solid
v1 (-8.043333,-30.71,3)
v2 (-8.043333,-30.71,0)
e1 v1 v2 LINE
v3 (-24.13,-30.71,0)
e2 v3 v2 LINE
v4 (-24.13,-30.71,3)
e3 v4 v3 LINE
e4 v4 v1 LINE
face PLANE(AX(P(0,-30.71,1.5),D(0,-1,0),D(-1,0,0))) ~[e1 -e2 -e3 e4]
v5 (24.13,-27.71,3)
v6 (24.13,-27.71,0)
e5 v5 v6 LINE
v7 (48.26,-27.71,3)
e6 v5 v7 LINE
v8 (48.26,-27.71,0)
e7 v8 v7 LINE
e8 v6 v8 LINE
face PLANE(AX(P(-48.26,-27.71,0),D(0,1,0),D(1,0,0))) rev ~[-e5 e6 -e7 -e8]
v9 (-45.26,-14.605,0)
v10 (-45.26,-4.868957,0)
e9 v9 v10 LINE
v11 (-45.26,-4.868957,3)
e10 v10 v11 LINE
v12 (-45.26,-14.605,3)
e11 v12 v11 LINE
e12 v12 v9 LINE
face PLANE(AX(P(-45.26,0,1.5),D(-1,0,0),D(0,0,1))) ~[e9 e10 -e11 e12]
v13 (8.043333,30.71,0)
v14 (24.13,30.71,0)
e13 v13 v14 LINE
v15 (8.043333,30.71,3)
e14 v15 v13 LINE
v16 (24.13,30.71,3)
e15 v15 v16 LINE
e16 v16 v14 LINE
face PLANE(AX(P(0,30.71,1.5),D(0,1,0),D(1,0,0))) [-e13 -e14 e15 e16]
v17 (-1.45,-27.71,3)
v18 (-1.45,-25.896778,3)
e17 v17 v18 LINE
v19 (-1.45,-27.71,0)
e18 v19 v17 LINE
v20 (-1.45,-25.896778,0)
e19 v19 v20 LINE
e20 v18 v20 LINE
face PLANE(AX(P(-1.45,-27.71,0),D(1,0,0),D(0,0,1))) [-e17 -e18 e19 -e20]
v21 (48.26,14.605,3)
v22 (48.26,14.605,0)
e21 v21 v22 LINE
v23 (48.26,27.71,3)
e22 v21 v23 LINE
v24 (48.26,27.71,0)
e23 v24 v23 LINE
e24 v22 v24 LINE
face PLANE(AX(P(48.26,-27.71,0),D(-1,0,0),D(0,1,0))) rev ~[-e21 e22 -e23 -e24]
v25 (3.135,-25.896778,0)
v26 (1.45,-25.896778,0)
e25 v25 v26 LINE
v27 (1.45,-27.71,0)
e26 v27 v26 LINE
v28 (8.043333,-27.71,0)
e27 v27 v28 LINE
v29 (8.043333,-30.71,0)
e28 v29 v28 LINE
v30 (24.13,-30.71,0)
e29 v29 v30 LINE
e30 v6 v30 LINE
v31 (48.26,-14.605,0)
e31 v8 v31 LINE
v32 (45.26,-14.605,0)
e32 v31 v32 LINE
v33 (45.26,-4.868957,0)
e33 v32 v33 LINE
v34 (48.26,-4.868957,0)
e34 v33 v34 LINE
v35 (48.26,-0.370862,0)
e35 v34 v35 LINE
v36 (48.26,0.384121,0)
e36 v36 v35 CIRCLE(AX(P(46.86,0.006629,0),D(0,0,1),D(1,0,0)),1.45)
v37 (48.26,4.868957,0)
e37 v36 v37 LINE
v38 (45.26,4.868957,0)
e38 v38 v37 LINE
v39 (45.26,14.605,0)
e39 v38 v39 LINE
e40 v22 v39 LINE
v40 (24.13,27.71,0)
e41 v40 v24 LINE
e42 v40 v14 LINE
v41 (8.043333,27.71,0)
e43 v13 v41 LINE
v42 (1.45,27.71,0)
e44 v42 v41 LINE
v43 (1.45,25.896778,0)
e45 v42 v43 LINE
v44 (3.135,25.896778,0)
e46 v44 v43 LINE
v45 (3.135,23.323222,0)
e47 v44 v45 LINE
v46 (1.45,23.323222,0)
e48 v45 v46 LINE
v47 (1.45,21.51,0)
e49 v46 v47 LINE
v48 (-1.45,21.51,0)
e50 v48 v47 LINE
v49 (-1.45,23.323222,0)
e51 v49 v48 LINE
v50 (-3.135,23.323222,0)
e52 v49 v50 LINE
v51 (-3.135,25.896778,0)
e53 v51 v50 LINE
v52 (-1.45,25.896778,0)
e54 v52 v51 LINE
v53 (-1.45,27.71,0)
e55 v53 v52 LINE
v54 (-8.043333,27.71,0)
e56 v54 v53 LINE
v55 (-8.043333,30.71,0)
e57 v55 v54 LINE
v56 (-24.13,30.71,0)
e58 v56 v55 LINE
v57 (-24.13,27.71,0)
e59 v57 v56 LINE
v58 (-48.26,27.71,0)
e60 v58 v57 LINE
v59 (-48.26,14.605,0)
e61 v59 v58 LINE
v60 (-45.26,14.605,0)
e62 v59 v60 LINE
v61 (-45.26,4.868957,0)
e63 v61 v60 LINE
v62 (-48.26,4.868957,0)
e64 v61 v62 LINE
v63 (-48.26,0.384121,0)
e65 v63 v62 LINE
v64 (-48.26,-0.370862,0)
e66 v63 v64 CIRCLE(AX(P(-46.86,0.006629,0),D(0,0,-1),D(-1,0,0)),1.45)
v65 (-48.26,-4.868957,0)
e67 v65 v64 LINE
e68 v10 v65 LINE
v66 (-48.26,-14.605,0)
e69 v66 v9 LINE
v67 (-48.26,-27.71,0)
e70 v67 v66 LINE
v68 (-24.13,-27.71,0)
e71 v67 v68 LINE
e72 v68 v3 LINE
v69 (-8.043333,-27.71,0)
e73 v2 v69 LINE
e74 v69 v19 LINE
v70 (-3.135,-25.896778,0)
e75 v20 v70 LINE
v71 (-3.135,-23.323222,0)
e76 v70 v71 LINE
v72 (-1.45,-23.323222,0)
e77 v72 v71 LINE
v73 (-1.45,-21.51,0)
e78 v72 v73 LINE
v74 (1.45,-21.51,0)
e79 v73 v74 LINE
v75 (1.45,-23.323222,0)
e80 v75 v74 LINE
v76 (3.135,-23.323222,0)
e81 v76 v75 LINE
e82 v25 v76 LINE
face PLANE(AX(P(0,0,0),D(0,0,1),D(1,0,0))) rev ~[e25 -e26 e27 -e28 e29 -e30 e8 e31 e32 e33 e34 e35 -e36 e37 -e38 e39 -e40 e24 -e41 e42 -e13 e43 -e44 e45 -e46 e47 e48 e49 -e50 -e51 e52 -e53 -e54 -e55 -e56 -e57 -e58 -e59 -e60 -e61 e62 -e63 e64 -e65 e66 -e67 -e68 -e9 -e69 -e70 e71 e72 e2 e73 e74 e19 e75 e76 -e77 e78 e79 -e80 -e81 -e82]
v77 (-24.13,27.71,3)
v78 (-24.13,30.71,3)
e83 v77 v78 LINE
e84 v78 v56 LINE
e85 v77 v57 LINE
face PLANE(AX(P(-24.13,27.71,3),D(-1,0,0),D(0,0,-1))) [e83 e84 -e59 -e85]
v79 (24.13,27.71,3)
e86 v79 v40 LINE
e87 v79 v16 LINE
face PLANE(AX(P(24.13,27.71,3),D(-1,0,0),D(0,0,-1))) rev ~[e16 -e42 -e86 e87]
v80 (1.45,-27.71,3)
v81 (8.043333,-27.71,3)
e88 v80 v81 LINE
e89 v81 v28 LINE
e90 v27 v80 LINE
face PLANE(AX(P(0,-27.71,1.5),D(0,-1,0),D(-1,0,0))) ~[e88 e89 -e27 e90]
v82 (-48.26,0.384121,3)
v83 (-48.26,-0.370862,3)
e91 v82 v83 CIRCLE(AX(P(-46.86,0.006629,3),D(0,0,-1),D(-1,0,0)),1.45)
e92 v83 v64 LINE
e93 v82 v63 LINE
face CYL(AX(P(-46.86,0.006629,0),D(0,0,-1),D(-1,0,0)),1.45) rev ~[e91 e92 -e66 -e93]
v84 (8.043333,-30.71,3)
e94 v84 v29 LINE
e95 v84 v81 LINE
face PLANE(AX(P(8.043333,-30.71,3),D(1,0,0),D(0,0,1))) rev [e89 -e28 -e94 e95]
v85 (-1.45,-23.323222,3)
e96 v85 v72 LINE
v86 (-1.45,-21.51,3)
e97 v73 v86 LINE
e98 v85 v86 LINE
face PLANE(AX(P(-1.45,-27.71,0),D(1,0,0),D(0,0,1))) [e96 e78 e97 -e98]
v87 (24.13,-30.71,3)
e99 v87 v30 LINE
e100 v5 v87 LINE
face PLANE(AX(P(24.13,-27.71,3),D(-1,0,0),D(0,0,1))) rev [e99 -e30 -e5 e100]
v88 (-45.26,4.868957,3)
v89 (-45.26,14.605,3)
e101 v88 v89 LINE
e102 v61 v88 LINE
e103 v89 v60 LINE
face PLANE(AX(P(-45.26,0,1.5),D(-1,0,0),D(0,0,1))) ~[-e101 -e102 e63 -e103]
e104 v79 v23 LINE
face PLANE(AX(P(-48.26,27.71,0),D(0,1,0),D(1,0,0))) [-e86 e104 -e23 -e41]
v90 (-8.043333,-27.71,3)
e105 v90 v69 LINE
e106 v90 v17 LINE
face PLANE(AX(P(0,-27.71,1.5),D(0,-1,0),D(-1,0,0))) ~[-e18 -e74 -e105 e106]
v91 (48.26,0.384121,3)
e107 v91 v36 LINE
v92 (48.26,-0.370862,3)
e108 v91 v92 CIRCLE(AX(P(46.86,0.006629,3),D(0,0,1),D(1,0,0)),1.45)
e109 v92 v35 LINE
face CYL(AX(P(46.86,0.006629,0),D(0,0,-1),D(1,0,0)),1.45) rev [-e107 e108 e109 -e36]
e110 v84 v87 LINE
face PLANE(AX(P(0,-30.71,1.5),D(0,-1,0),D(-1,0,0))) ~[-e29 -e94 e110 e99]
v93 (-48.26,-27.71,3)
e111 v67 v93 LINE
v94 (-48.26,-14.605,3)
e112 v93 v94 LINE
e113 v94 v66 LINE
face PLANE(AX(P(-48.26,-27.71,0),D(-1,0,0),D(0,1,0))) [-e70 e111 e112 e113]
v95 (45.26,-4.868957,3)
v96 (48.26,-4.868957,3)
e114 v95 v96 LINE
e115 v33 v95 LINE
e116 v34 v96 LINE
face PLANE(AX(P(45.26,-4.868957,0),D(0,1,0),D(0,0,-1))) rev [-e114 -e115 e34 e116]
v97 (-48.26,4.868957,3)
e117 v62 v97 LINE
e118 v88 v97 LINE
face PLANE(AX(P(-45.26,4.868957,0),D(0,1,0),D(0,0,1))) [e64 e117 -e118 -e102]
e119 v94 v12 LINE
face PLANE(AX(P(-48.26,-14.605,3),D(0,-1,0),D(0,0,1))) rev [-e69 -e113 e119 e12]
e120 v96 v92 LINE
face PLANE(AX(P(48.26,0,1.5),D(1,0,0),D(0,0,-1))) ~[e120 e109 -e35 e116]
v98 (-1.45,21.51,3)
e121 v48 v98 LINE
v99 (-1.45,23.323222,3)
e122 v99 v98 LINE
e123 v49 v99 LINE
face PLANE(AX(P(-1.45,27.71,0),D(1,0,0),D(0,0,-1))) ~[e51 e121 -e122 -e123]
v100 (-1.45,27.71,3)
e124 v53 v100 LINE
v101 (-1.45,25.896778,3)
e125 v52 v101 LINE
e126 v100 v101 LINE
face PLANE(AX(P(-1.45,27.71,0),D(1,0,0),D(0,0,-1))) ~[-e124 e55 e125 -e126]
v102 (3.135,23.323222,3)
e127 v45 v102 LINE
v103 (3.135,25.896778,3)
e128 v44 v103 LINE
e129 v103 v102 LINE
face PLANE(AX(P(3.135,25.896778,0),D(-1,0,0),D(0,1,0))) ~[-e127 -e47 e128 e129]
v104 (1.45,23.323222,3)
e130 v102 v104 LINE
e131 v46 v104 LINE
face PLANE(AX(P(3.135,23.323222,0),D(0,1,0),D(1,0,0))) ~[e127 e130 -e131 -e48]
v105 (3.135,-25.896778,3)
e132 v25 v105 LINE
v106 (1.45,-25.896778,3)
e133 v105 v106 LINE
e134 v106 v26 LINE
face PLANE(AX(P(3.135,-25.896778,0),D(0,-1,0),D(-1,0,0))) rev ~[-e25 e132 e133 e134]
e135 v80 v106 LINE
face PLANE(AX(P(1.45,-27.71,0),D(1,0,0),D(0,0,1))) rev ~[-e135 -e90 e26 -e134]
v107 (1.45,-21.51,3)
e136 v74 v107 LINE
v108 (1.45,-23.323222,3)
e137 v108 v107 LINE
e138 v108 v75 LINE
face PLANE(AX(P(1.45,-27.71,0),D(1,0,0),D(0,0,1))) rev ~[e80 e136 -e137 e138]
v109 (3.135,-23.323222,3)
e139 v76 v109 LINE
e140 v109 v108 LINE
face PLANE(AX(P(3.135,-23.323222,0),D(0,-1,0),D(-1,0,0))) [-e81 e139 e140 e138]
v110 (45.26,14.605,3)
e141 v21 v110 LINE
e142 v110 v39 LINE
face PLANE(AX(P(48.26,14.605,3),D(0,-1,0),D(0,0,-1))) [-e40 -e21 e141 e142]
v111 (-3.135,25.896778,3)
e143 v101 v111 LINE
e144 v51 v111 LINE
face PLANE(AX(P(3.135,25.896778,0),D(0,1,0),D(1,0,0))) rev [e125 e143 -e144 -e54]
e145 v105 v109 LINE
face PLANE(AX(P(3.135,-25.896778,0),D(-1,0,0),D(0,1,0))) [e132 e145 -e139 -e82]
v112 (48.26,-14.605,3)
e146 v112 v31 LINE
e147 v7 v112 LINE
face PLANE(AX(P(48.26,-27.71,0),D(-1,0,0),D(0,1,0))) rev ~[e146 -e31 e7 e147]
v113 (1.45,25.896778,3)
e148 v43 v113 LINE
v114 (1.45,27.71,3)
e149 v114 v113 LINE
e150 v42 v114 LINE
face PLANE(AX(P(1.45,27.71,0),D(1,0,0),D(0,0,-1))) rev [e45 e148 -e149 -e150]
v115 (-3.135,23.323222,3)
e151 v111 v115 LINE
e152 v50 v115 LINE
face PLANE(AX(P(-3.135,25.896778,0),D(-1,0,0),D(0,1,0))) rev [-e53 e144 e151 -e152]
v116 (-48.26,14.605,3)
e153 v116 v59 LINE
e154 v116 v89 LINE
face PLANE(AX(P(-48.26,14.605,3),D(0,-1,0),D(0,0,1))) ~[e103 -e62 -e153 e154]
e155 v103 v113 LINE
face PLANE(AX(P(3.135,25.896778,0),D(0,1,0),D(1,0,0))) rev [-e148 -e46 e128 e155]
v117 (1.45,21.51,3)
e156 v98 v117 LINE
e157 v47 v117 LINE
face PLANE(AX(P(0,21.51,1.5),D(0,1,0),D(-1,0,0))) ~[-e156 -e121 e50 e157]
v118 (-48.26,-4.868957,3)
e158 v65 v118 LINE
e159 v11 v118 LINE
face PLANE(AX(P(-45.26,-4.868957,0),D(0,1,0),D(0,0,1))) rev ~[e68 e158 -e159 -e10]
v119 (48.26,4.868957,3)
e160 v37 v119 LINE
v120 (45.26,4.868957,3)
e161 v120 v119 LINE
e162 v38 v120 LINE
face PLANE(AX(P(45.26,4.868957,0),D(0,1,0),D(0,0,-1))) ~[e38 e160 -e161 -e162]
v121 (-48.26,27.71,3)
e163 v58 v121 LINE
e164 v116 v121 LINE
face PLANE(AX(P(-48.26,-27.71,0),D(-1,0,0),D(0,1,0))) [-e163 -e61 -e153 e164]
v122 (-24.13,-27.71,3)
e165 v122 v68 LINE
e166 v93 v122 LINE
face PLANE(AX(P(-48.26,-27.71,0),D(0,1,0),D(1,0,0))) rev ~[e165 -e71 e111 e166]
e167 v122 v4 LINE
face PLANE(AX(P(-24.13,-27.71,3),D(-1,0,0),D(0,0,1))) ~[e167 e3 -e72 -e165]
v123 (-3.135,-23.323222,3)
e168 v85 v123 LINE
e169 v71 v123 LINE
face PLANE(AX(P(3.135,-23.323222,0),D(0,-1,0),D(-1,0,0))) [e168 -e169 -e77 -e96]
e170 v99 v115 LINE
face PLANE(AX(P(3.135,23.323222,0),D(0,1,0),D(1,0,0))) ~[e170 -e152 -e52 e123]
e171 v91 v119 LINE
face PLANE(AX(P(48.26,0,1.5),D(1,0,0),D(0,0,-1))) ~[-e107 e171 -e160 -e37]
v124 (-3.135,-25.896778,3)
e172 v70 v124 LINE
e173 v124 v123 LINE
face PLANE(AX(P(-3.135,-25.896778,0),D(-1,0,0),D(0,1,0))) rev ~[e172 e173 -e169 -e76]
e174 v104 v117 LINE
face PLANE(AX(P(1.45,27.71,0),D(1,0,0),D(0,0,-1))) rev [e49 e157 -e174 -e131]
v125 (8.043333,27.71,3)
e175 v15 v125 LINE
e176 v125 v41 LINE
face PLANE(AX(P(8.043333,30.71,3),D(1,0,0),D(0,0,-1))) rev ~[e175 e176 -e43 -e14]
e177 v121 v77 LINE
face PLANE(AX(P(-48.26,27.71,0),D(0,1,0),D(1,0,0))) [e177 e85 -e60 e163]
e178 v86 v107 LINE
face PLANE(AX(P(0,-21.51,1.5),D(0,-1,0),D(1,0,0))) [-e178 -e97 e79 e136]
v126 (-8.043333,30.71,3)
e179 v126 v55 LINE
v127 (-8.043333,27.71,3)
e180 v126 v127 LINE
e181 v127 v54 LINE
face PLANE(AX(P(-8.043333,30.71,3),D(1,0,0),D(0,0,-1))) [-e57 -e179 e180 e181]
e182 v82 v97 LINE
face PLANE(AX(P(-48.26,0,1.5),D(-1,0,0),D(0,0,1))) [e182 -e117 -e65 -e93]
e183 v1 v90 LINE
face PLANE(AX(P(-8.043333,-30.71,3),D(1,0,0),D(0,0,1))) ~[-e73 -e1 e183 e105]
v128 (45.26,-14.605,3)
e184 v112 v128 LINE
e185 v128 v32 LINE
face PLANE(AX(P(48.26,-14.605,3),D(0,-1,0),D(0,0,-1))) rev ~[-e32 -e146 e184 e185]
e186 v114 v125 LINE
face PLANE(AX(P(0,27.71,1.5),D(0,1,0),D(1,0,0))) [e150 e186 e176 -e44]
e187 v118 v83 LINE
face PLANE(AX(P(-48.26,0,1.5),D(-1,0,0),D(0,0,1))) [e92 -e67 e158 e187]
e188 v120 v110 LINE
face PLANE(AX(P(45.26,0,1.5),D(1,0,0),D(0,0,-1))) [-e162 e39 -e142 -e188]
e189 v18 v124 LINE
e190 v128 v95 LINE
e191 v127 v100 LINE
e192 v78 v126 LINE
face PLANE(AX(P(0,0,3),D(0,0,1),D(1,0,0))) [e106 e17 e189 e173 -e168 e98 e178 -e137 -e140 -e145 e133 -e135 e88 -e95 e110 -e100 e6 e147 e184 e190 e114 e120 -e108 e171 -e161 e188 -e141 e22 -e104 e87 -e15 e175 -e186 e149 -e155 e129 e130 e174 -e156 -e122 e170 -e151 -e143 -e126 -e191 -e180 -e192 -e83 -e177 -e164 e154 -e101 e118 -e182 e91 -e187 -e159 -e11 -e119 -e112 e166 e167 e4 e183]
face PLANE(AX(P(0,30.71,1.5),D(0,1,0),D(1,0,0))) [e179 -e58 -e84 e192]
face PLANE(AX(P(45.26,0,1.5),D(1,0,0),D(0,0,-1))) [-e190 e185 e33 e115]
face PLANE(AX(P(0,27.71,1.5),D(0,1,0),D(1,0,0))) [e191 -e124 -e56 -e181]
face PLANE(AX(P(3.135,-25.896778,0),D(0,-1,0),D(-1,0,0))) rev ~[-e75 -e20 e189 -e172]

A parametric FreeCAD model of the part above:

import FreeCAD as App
import Part
import Sketcher

V = App.Vector

doc = App.newDocument("Part")
body = doc.addObject("PartDesign::Body", "Body")

# Sketch on XY plane
sketch1 = body.newObject("Sketcher::SketchObject", "Sketch")
sketch1.AttachmentSupport = (doc.getObject("XY_Plane"), [""])
sketch1.MapMode = "FlatFace"
sketch1.addGeometry([
    Part.LineSegment(V(-48, 28, 0), V(-48, -28, 0)),
    Part.LineSegment(V(-48, -28, 0), V(48, -28, 0)),
    Part.LineSegment(V(48, -28, 0), V(48, 28, 0)),
    Part.LineSegment(V(48, 28, 0), V(-48, 28, 0)),
], False)
sketch1.addConstraint([
    Sketcher.Constraint("Coincident", 0, 2, 1, 1),
    Sketcher.Constraint("Coincident", 1, 2, 2, 1),
    Sketcher.Constraint("Coincident", 2, 2, 3, 1),
    Sketcher.Constraint("Coincident", 3, 2, 0, 1),
    Sketcher.Constraint("Vertical", 0),
    Sketcher.Constraint("Horizontal", 1),
    Sketcher.Constraint("Vertical", 2),
    Sketcher.Constraint("Horizontal", 3),
    Sketcher.Constraint("Symmetric", 0, 2, 2, 2, -1, 1),
    Sketcher.Constraint("DistanceX", 1, 1, 1, 2, 96.52),
    Sketcher.Constraint("DistanceY", 0, 2, 0, 1, 55.42),
])
pad1 = body.newObject("PartDesign::Pad", "Pad")
pad1.Profile = sketch1
pad1.Length = 3

# Sketch on XZ plane
sketch2 = body.newObject("Sketcher::SketchObject", "Sketch001")
sketch2.AttachmentSupport = (doc.getObject("XZ_Plane"), [""])
sketch2.MapMode = "FlatFace"
sketch2.AttachmentOffset = App.Placement(V(0, 0, -27.71), App.Rotation())
sketch2.addGeometry([
    Part.LineSegment(V(-24.1, 0, 0), V(-24.1, 3, 0)),
    Part.LineSegment(V(-24.1, 3, 0), V(24.1, 3, 0)),
    Part.LineSegment(V(24.1, 3, 0), V(24.1, 0, 0)),
    Part.LineSegment(V(24.1, 0, 0), V(-24.1, 0, 0)),
], False)
sketch2.addConstraint([
    Sketcher.Constraint("Coincident", 0, 2, 1, 1),
    Sketcher.Constraint("Coincident", 1, 2, 2, 1),
    Sketcher.Constraint("Coincident", 2, 2, 3, 1),
    Sketcher.Constraint("Coincident", 3, 2, 0, 1),
    Sketcher.Constraint("Vertical", 0),
    Sketcher.Constraint("Horizontal", 1),
    Sketcher.Constraint("Vertical", 2),
    Sketcher.Constraint("Horizontal", 3),
    Sketcher.Constraint("Symmetric", 2, 2, 3, 2, -1, 1),
    Sketcher.Constraint("DistanceY", 0, 1, 0, 2, 3.0),
    Sketcher.Constraint("DistanceX", 1, 1, 1, 2, 48.26),
])
pad2 = body.newObject("PartDesign::Pad", "Pad001")
pad2.Profile = sketch2
pad2.Length = 3
pad2.Reversed = True
doc.recompute()

mirrored = body.newObject("PartDesign::Mirrored", "Mirrored")
mirrored.Originals = [pad2]
mirrored.MirrorPlane = (doc.getObject("XZ_Plane"), [""])
body.Tip = mirrored

# Sketch on YZ plane
sketch3 = body.newObject("Sketcher::SketchObject", "Sketch002")
sketch3.AttachmentSupport = (doc.getObject("YZ_Plane"), [""])
sketch3.MapMode = "FlatFace"
sketch3.AttachmentOffset = App.Placement(V(0, 0, 48.26), App.Rotation())
sketch3.addGeometry([
    Part.LineSegment(V(14.6, 3, 0), V(-14.6, 3, 0)),
    Part.LineSegment(V(-14.6, 3, 0), V(-14.6, 0, 0)),
    Part.LineSegment(V(-14.6, 0, 0), V(14.6, 0, 0)),
    Part.LineSegment(V(14.6, 0, 0), V(14.6, 3, 0)),
], False)
sketch3.addConstraint([
    Sketcher.Constraint("Coincident", 0, 2, 1, 1),
    Sketcher.Constraint("Coincident", 1, 2, 2, 1),
    Sketcher.Constraint("Coincident", 2, 2, 3, 1),
    Sketcher.Constraint("Coincident", 3, 2, 0, 1),
    Sketcher.Constraint("Horizontal", 0),
    Sketcher.Constraint("Vertical", 1),
    Sketcher.Constraint("Horizontal", 2),
    Sketcher.Constraint("Vertical", 3),
    Sketcher.Constraint("Symmetric", 1, 2, 2, 2, -1, 1),
    Sketcher.Constraint("DistanceY", 1, 2, 1, 1, 3.0),
    Sketcher.Constraint("DistanceX", 0, 2, 0, 1, 29.21),
])
pocket1 = body.newObject("PartDesign::Pocket", "Pocket")
pocket1.Profile = sketch3
pocket1.Length = 3
doc.recompute()

mirrored2 = body.newObject("PartDesign::Mirrored", "Mirrored001")
mirrored2.Originals = [pocket1]
mirrored2.MirrorPlane = (doc.getObject("YZ_Plane"), [""])
body.Tip = mirrored2

# Sketch on XZ plane
sketch4 = body.newObject("Sketcher::SketchObject", "Sketch003")
sketch4.AttachmentSupport = (doc.getObject("XZ_Plane"), [""])
sketch4.MapMode = "FlatFace"
sketch4.AttachmentOffset = App.Placement(V(0, 0, -30.71), App.Rotation())
sketch4.addGeometry([
    Part.LineSegment(V(-8, 0, 0), V(-8, 3, 0)),
    Part.LineSegment(V(-8, 3, 0), V(8, 3, 0)),
    Part.LineSegment(V(8, 3, 0), V(8, 0, 0)),
    Part.LineSegment(V(8, 0, 0), V(-8, 0, 0)),
], False)
sketch4.addConstraint([
    Sketcher.Constraint("Coincident", 0, 2, 1, 1),
    Sketcher.Constraint("Coincident", 1, 2, 2, 1),
    Sketcher.Constraint("Coincident", 2, 2, 3, 1),
    Sketcher.Constraint("Coincident", 3, 2, 0, 1),
    Sketcher.Constraint("Vertical", 0),
    Sketcher.Constraint("Horizontal", 1),
    Sketcher.Constraint("Vertical", 2),
    Sketcher.Constraint("Horizontal", 3),
    Sketcher.Constraint("Symmetric", 2, 2, 3, 2, -1, 1),
    Sketcher.Constraint("DistanceY", 0, 1, 0, 2, 3.0),
    Sketcher.Constraint("DistanceX", 1, 1, 1, 2, 16.086667),
])
pocket2 = body.newObject("PartDesign::Pocket", "Pocket001")
pocket2.Profile = sketch4
pocket2.Length = 3
pocket2.Reversed = True
doc.recompute()

mirrored3 = body.newObject("PartDesign::Mirrored", "Mirrored002")
mirrored3.Originals = [pocket2]
mirrored3.MirrorPlane = (doc.getObject("XZ_Plane"), [""])
body.Tip = mirrored3

# Sketch on YZ plane
sketch5 = body.newObject("Sketcher::SketchObject", "Sketch004")
sketch5.AttachmentSupport = (doc.getObject("YZ_Plane"), [""])
sketch5.MapMode = "FlatFace"
sketch5.AttachmentOffset = App.Placement(V(0, 0, -45.26), App.Rotation())
sketch5.addGeometry([
    Part.LineSegment(V(4.9, 0, 0), V(-4.9, 0, 0)),
    Part.LineSegment(V(-4.9, 0, 0), V(-4.9, 3, 0)),
    Part.LineSegment(V(-4.9, 3, 0), V(4.9, 3, 0)),
    Part.LineSegment(V(4.9, 3, 0), V(4.9, 0, 0)),
], False)
sketch5.addConstraint([
    Sketcher.Constraint("Coincident", 0, 2, 1, 1),
    Sketcher.Constraint("Coincident", 1, 2, 2, 1),
    Sketcher.Constraint("Coincident", 2, 2, 3, 1),
    Sketcher.Constraint("Coincident", 3, 2, 0, 1),
    Sketcher.Constraint("Horizontal", 0),
    Sketcher.Constraint("Vertical", 1),
    Sketcher.Constraint("Horizontal", 2),
    Sketcher.Constraint("Vertical", 3),
    Sketcher.Constraint("Symmetric", 0, 2, 3, 2, -1, 1),
    Sketcher.Constraint("DistanceY", 1, 1, 1, 2, 3.0),
    Sketcher.Constraint("DistanceX", 0, 2, 0, 1, 9.737913),
])
pad3 = body.newObject("PartDesign::Pad", "Pad002")
pad3.Profile = sketch5
pad3.Length = 3
pad3.Reversed = True
doc.recompute()

mirrored4 = body.newObject("PartDesign::Mirrored", "Mirrored003")
mirrored4.Originals = [pad3]
mirrored4.MirrorPlane = (doc.getObject("YZ_Plane"), [""])
body.Tip = mirrored4

# Sketch on XZ plane
sketch6 = body.newObject("Sketcher::SketchObject", "Sketch005")
sketch6.AttachmentSupport = (doc.getObject("XZ_Plane"), [""])
sketch6.MapMode = "FlatFace"
sketch6.AttachmentOffset = App.Placement(V(0, 0, 27.71), App.Rotation())
sketch6.addGeometry([
    Part.LineSegment(V(-1.4, 3, 0), V(-1.4, 0, 0)),
    Part.LineSegment(V(-1.4, 0, 0), V(1.4, 0, 0)),
    Part.LineSegment(V(1.4, 0, 0), V(1.4, 3, 0)),
    Part.LineSegment(V(1.4, 3, 0), V(-1.4, 3, 0)),
], False)
sketch6.addConstraint([
    Sketcher.Constraint("Coincident", 0, 2, 1, 1),
    Sketcher.Constraint("Coincident", 1, 2, 2, 1),
    Sketcher.Constraint("Coincident", 2, 2, 3, 1),
    Sketcher.Constraint("Coincident", 3, 2, 0, 1),
    Sketcher.Constraint("Vertical", 0),
    Sketcher.Constraint("Horizontal", 1),
    Sketcher.Constraint("Vertical", 2),
    Sketcher.Constraint("Horizontal", 3),
    Sketcher.Constraint("Symmetric", 0, 2, 1, 2, -1, 1),
    Sketcher.Constraint("DistanceY", 0, 2, 0, 1, 3.0),
    Sketcher.Constraint("DistanceX", 1, 1, 1, 2, 2.9),
])
pocket3 = body.newObject("PartDesign::Pocket", "Pocket002")
pocket3.Profile = sketch6
pocket3.Length = 6.2

# Sketch on XY plane
sketch7 = body.newObject("Sketcher::SketchObject", "Sketch006")
sketch7.AttachmentSupport = (doc.getObject("XY_Plane"), [""])
sketch7.MapMode = "FlatFace"
sketch7.addGeometry([
    Part.LineSegment(V(3.1, -23.3, 0), V(3.1, -25.9, 0)),
    Part.LineSegment(V(3.1, -25.9, 0), V(-3.1, -25.9, 0)),
    Part.LineSegment(V(-3.1, -25.9, 0), V(-3.1, -23.3, 0)),
    Part.LineSegment(V(-3.1, -23.3, 0), V(3.1, -23.3, 0)),
], False)
sketch7.addConstraint([
    Sketcher.Constraint("Coincident", 0, 2, 1, 1),
    Sketcher.Constraint("Coincident", 1, 2, 2, 1),
    Sketcher.Constraint("Coincident", 2, 2, 3, 1),
    Sketcher.Constraint("Coincident", 3, 2, 0, 1),
    Sketcher.Constraint("Vertical", 0),
    Sketcher.Constraint("Horizontal", 1),
    Sketcher.Constraint("Vertical", 2),
    Sketcher.Constraint("Horizontal", 3),
    Sketcher.Constraint("DistanceX", 1, 2, 1, 1, 6.27),
    Sketcher.Constraint("DistanceX", -1, 1, 0, 2, 3.135),
    Sketcher.Constraint("DistanceY", 0, 2, 0, 1, 2.573555),
    Sketcher.Constraint("DistanceY", 0, 2, -1, 1, 25.896778),
])
pocket4 = body.newObject("PartDesign::Pocket", "Pocket003")
pocket4.Profile = sketch7
pocket4.Length = 3
pocket4.Reversed = True
doc.recompute()

mirrored5 = body.newObject("PartDesign::Mirrored", "Mirrored004")
mirrored5.Originals = [pocket3]
mirrored5.MirrorPlane = (doc.getObject("XZ_Plane"), [""])
body.Tip = mirrored5
doc.recompute()

mirrored6 = body.newObject("PartDesign::Mirrored", "Mirrored005")
mirrored6.Originals = [pocket4]
mirrored6.MirrorPlane = (doc.getObject("XZ_Plane"), [""])
body.Tip = mirrored6

# Sketch on XY plane
sketch8 = body.newObject("Sketcher::SketchObject", "Sketch007")
sketch8.AttachmentSupport = (doc.getObject("XY_Plane"), [""])
sketch8.MapMode = "FlatFace"
sketch8.addGeometry(Part.Circle(V(-46.9, 0, 0), V(0, 0, 1), 1.4), False)
sketch8.addConstraint([
    Sketcher.Constraint("Diameter", 0, 2.9),
    Sketcher.Constraint("DistanceX", 0, 3, -1, 1, 46.86),
    Sketcher.Constraint("DistanceY", -1, 1, 0, 3, 0.006629),
])
pocket5 = body.newObject("PartDesign::Pocket", "Pocket004")
pocket5.Profile = sketch8
pocket5.Length = 3
pocket5.Reversed = True
doc.recompute()

mirrored7 = body.newObject("PartDesign::Mirrored", "Mirrored006")
mirrored7.Originals = [pocket5]
mirrored7.MirrorPlane = (doc.getObject("YZ_Plane"), [""])
body.Tip = mirrored7

doc.recompute()
